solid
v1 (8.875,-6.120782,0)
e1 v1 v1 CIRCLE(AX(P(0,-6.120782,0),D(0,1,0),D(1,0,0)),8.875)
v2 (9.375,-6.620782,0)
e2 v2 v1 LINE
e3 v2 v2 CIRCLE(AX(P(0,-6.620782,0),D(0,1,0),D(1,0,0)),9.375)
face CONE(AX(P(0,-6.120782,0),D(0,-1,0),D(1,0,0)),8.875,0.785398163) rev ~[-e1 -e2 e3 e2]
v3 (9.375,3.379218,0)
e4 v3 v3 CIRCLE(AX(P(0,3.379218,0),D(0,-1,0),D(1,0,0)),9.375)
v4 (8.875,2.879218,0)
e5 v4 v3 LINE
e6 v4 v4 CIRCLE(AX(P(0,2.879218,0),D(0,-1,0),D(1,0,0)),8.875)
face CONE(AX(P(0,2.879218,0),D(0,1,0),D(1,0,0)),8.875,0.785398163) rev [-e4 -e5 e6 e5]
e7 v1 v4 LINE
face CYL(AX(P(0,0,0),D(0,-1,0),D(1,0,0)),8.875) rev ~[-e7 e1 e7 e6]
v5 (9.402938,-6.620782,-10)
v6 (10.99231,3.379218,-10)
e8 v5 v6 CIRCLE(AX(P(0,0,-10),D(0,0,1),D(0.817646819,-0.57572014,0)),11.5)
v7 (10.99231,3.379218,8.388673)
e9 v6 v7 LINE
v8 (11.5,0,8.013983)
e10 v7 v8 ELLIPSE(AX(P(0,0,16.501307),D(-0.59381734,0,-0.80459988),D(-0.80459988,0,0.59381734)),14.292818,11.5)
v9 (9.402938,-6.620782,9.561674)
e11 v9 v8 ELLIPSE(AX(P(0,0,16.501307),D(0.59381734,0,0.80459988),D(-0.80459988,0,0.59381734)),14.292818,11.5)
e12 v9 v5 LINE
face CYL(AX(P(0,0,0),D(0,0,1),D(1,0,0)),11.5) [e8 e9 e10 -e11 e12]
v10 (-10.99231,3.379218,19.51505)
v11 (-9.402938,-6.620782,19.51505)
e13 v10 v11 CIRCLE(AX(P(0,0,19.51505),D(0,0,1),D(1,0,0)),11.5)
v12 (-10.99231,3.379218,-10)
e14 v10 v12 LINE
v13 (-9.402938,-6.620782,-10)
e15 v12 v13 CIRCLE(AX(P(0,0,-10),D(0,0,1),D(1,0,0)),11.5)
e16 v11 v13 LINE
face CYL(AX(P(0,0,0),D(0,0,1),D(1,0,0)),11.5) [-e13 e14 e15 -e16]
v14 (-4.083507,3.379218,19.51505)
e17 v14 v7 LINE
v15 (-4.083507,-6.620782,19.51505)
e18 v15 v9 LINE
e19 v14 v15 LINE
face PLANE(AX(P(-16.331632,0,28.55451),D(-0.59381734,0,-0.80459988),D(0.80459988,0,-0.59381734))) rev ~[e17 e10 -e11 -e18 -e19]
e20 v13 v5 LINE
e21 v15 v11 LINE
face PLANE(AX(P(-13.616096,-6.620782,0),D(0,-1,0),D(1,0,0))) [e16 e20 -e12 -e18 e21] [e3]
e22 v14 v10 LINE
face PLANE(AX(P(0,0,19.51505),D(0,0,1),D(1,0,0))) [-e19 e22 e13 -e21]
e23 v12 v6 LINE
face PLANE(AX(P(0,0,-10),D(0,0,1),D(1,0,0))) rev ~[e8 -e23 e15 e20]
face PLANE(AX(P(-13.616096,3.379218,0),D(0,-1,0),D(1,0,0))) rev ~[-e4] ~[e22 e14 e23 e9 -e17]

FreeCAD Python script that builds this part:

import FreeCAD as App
import Part
import Sketcher

V = App.Vector


def edges_at(feature, points):
    """Names of the edges that pass closest to the given points."""
    edges = feature.Shape.Edges
    near = lambda p: min(range(len(edges)), key=lambda i: edges[i].distToShape(Part.Vertex(*p))[0])
    return sorted({f"Edge{near(p) + 1}" for p in points})


def add_polygon(sketch, points):
    """Adds a closed chain of lines whose ends are joined by coincident constraints."""
    first, n = sketch.GeometryCount, len(points)
    for a, b in zip(points, points[1:] + points[:1]):
        sketch.addGeometry(Part.LineSegment(App.Vector(*a, 0), App.Vector(*b, 0)), False)
    for i in range(n):
        sketch.addConstraint(Sketcher.Constraint("Coincident", first + i, 2, first + (i + 1) % n, 1))

doc = App.newDocument("Part")
body = doc.addObject("PartDesign::Body", "Body")

sketch1 = doc.addObject("Sketcher::SketchObject", "Sketch")
body.addObject(sketch1)
sketch1.AttachmentSupport = (doc.XY_Plane, [""])
sketch1.MapMode = "FlatFace"
sketch1.addGeometry(Part.Circle(V(0, 0, 0), V(0, 0, 1), 12), False)
sketch1.addConstraint(Sketcher.Constraint("Coincident", 0, 3, -1, 1))
sketch1.addConstraint(Sketcher.Constraint("Diameter", 0, 23.0))
pad1 = doc.addObject("PartDesign::Pad", "Pad")
body.addObject(pad1)
pad1.Profile = sketch1
pad1.Type = "TwoLengths"
pad1.Length = 19.51505
pad1.Length2 = 10

sketch2 = doc.addObject("Sketcher::SketchObject", "Sketch001")
body.addObject(sketch2)
sketch2.AttachmentSupport = (doc.XZ_Plane, [""])
sketch2.MapMode = "FlatFace"
sketch2.addGeometry(Part.Circle(V(0, 0, 0), V(0, 0, 1), 9), False)
sketch2.addConstraint(Sketcher.Constraint("Coincident", 0, 3, -1, 1))
sketch2.addConstraint(Sketcher.Constraint("Diameter", 0, 17.75))
pocket1 = doc.addObject("PartDesign::Pocket", "Pocket")
body.addObject(pocket1)
pocket1.Profile = sketch2
pocket1.Type = "ThroughAll"
pocket1.Midplane = True

sketch3 = doc.addObject("Sketcher::SketchObject", "Sketch002")
body.addObject(sketch3)
sketch3.AttachmentSupport = (doc.XZ_Plane, [""])
sketch3.MapMode = "FlatFace"
add_polygon(sketch3, [(25, 29), (-16, 29), (25, -2)])
sketch3.addConstraint(Sketcher.Constraint("Horizontal", 0))
sketch3.addConstraint(Sketcher.Constraint("Vertical", 2))
sketch3.addConstraint(Sketcher.Constraint("DistanceY", 2, 1, 2, 2, 30.331839))
sketch3.addConstraint(Sketcher.Constraint("Distance", 1, 51.079409))
sketch3.addConstraint(Sketcher.Constraint("DistanceX", 0, 2, -1, 1, 16.331632))
sketch3.addConstraint(Sketcher.Constraint("DistanceY", -1, 1, 0, 2, 28.55451))
pocket2 = doc.addObject("PartDesign::Pocket", "Pocket001")
body.addObject(pocket2)
pocket2.Profile = sketch3
pocket2.Type = "ThroughAll"
pocket2.Midplane = True

sketch4 = doc.addObject("Sketcher::SketchObject", "Sketch003")
body.addObject(sketch4)
sketch4.AttachmentSupport = (doc.XY_Plane, [""])
sketch4.MapMode = "FlatFace"
add_polygon(sketch4, [(-14, 17), (-14, 3), (17, 3), (17, 17)])
add_polygon(sketch4, [(-14, -7), (-14, -20), (17, -20), (17, -7)])
sketch4.addConstraint(Sketcher.Constraint("Vertical", 0))
sketch4.addConstraint(Sketcher.Constraint("Horizontal", 1))
sketch4.addConstraint(Sketcher.Constraint("Vertical", 2))
sketch4.addConstraint(Sketcher.Constraint("Horizontal", 3))
sketch4.addConstraint(Sketcher.Constraint("Vertical", 4))
sketch4.addConstraint(Sketcher.Constraint("Horizontal", 5))
sketch4.addConstraint(Sketcher.Constraint("Vertical", 6))
sketch4.addConstraint(Sketcher.Constraint("Horizontal", 7))
sketch4.addConstraint(Sketcher.Constraint("Vertical", 3, 2, 4, 2))
sketch4.addConstraint(Sketcher.Constraint("Vertical", 2, 2, 5, 2))
sketch4.addConstraint(Sketcher.Constraint("DistanceY", 6, 2, 1, 2, 10.0))
sketch4.addConstraint(Sketcher.Constraint("DistanceX", 1, 1, 1, 2, 31.05263))
sketch4.addConstraint(Sketcher.Constraint("DistanceY", 0, 2, 0, 1, 13.870571))
sketch4.addConstraint(Sketcher.Constraint("DistanceY", 4, 2, 4, 1, 13.175949))
sketch4.addConstraint(Sketcher.Constraint("DistanceY", -1, 1, 0, 2, 3.379218))
sketch4.addConstraint(Sketcher.Constraint("DistanceX", 0, 2, -1, 1, 13.616096))
pocket3 = doc.addObject("PartDesign::Pocket", "Pocket002")
body.addObject(pocket3)
pocket3.Profile = sketch4
pocket3.Type = "ThroughAll"
pocket3.Midplane = True
doc.recompute()

chamfer = doc.addObject("PartDesign::Chamfer", "Chamfer")
body.addObject(chamfer)
chamfer.Base = (pocket3, edges_at(pocket3, [(-8.875, 3.379, 0), (-8.875, -6.621, 0)]))
chamfer.Size = 0.5

doc.recompute()
